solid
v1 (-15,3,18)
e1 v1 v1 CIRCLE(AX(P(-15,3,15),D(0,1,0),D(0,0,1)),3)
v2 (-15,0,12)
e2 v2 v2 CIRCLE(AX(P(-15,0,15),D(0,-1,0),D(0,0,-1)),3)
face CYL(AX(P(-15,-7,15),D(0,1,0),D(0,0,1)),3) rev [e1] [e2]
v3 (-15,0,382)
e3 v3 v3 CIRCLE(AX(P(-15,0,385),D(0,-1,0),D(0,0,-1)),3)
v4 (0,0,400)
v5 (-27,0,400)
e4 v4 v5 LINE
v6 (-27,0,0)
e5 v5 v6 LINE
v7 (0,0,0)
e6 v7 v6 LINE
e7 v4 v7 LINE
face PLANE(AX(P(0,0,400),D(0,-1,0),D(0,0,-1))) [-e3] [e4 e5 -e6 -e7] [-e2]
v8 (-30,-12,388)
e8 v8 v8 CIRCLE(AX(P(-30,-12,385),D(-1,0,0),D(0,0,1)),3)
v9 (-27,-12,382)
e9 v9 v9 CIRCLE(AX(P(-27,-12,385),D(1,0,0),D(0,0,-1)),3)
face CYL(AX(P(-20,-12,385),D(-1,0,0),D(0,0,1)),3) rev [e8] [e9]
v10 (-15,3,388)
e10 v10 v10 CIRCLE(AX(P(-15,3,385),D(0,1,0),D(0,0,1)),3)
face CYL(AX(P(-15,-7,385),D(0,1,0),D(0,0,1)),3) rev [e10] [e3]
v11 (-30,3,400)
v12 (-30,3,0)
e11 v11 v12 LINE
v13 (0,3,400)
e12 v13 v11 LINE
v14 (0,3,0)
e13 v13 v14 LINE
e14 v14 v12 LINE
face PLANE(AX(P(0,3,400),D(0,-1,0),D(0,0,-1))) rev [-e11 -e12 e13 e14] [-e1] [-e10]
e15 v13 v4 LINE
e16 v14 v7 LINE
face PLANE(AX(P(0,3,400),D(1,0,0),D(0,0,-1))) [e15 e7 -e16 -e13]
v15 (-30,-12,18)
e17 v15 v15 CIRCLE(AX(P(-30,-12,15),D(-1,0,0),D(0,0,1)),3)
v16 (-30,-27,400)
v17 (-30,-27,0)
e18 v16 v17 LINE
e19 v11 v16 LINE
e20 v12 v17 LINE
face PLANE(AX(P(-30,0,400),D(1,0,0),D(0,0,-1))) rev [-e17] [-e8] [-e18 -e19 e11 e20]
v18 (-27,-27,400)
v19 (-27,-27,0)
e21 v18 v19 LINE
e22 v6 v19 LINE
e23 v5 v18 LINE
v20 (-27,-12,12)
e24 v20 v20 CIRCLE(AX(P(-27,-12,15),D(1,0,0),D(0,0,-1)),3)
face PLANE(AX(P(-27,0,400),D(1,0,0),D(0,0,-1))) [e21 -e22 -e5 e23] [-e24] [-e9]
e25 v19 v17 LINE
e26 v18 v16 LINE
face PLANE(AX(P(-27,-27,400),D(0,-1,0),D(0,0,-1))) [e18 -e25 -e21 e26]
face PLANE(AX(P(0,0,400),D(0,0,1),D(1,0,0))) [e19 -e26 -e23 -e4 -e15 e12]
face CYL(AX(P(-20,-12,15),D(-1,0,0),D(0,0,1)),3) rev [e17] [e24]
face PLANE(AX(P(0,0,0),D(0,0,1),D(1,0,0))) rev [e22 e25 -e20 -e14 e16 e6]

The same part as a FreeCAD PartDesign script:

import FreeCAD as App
import Part
import Sketcher
from FreeCAD import Vector


def add_polygon(sketch, points):
    """Adds a closed chain of lines whose ends are joined by coincident constraints."""
    first, n = sketch.GeometryCount, len(points)
    for a, b in zip(points, points[1:] + points[:1]):
        sketch.addGeometry(Part.LineSegment(App.Vector(*a, 0), App.Vector(*b, 0)), False)
    for i in range(n):
        sketch.addConstraint(Sketcher.Constraint("Coincident", first + i, 2, first + (i + 1) % n, 1))

doc = App.newDocument("Part")
body = doc.addObject("PartDesign::Body", "Body")

# Sketch on XY plane
sketch1 = body.newObject("Sketcher::SketchObject", "Sketch")
sketch1.AttachmentSupport = (doc.getObject("XY_Plane"), [""])
sketch1.MapMode = "FlatFace"
add_polygon(sketch1, [(-27, 0), (0, 0), (0, 3), (-30, 3), (-30, -27), (-27, -27)])  # lines 0-5
sketch1.addConstraint([
    Sketcher.Constraint("Horizontal", 0),
    Sketcher.Constraint("Vertical", 1),
    Sketcher.Constraint("Horizontal", 2),
    Sketcher.Constraint("Vertical", 3),
    Sketcher.Constraint("Horizontal", 4),
    Sketcher.Constraint("Vertical", 5),
    Sketcher.Constraint("Coincident", 0, 2, -1, 1),
    Sketcher.Constraint("Equal", 4, 1),
    Sketcher.Constraint("Equal", 2, 3),
    Sketcher.Constraint("DistanceX", 0, 1, 0, 2, 27.0),
    Sketcher.Constraint("DistanceX", 2, 2, 2, 1, 30.0),
])
pad1 = body.newObject("PartDesign::Pad", "Pad")
pad1.Profile = sketch1
pad1.Length = 400

# Sketch on XZ plane
sketch2 = body.newObject("Sketcher::SketchObject", "Sketch001")
sketch2.AttachmentSupport = (doc.getObject("XZ_Plane"), [""])
sketch2.MapMode = "FlatFace"
sketch2.AttachmentOffset = App.Placement(Vector(0, 0, -3), App.Rotation())
sketch2.addGeometry(Part.Circle(Vector(-15, 15, 0), Vector(0, 0, 1), 3), False)
sketch2.addConstraint([
    Sketcher.Constraint("Diameter", 0, 6.0),
    Sketcher.Constraint("DistanceX", 0, 3, -1, 1, 15.0),
    Sketcher.Constraint("DistanceY", -1, 1, 0, 3, 15.0),
])
pocket1 = body.newObject("PartDesign::Pocket", "Pocket")
pocket1.Profile = sketch2
pocket1.Length = 10
pocket1.Reversed = True
doc.recompute()

linearpattern = body.newObject("PartDesign::LinearPattern", "LinearPattern")
linearpattern.Originals = [pocket1]
linearpattern.Direction = (doc.getObject("Z_Axis"), [""])
linearpattern.Mode = "offset"
linearpattern.Offset = 370
linearpattern.Occurrences = 2
body.Tip = linearpattern

# Sketch on YZ plane
sketch3 = body.newObject("Sketcher::SketchObject", "Sketch002")
sketch3.AttachmentSupport = (doc.getObject("YZ_Plane"), [""])
sketch3.MapMode = "FlatFace"
sketch3.AttachmentOffset = App.Placement(Vector(0, 0, -30), App.Rotation())
sketch3.addGeometry(Part.Circle(Vector(-12, 15, 0), Vector(0, 0, 1), 3), False)
sketch3.addConstraint([
    Sketcher.Constraint("Diameter", 0, 6.0),
    Sketcher.Constraint("DistanceX", 0, 3, -1, 1, 12.0),
    Sketcher.Constraint("DistanceY", -1, 1, 0, 3, 15.0),
])
pocket2 = body.newObject("PartDesign::Pocket", "Pocket001")
pocket2.Profile = sketch3
pocket2.Length = 10
pocket2.Reversed = True
doc.recompute()

linearpattern2 = body.newObject("PartDesign::LinearPattern", "LinearPattern001")
linearpattern2.Originals = [pocket2]
linearpattern2.Direction = (doc.getObject("Z_Axis"), [""])
linearpattern2.Mode = "offset"
linearpattern2.Offset = 370
linearpattern2.Occurrences = 2
body.Tip = linearpattern2

doc.recompute()
